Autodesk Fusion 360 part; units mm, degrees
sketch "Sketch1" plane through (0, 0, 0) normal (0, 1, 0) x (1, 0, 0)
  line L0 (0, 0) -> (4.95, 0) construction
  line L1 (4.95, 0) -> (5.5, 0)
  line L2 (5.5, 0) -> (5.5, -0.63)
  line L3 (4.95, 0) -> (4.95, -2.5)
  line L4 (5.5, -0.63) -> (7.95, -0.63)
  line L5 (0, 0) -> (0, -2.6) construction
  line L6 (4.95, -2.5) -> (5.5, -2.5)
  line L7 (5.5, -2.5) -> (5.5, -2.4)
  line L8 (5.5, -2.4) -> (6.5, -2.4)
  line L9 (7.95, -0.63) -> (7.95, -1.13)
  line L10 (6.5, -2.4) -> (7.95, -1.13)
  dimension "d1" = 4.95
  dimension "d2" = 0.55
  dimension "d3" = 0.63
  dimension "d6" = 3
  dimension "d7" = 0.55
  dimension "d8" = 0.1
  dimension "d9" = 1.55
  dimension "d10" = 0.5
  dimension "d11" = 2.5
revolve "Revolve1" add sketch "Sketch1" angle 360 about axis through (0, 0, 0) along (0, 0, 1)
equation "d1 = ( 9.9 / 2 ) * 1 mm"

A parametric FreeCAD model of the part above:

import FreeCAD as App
import Part
import Sketcher
from FreeCAD import Vector


def add_polygon(sketch, points):
    """Adds a closed chain of lines whose ends are joined by coincident constraints."""
    first, n = sketch.GeometryCount, len(points)
    for a, b in zip(points, points[1:] + points[:1]):
        sketch.addGeometry(Part.LineSegment(App.Vector(*a, 0), App.Vector(*b, 0)), False)
    for i in range(n):
        sketch.addConstraint(Sketcher.Constraint("Coincident", first + i, 2, first + (i + 1) % n, 1))

doc = App.newDocument("Part")
params = doc.addObject("Spreadsheet::Sheet", "Params")
for row, (alias, value) in enumerate([
    ("sketch1_height", "2.5 mm"),
    ("sketch1_height2", "0.1 mm"),
    ("sketch1_height3", "0.5 mm"),
    ("sketch1_width", "0.55 mm"),
    ("sketch1_height4", "0.63 mm"),
    ("revolution_angle", "360 deg"),
], start=1):
    params.set(f"A{row}", alias)
    params.set(f"B{row}", "=" + value)
    params.setAlias(f"B{row}", alias)

body = doc.addObject("PartDesign::Body", "Body")

# Sketch on XZ plane
sketch1 = body.newObject("Sketcher::SketchObject", "Sketch")
sketch1.AttachmentSupport = (doc.getObject("XZ_Plane"), [""])
sketch1.MapMode = "FlatFace"
add_polygon(sketch1, [(5.5, 0), (4.95, 0), (4.95, 2.5), (5.5, 2.5), (5.5, 2.4), (6.5, 2.4), (7.95, 1.13), (7.95, 0.63), (5.5, 0.63)])  # lines 0-8
sketch1.addConstraint(Sketcher.Constraint("Horizontal", 0))
sketch1.addConstraint(Sketcher.Constraint("Vertical", 1))
sketch1.addConstraint(Sketcher.Constraint("Horizontal", 2))
sketch1.addConstraint(Sketcher.Constraint("Vertical", 3))
sketch1.addConstraint(Sketcher.Constraint("Horizontal", 4))
sketch1.addConstraint(Sketcher.Constraint("Vertical", 6))
sketch1.addConstraint(Sketcher.Constraint("Horizontal", 7))
sketch1.addConstraint(Sketcher.Constraint("Vertical", 8))
sketch1.addConstraint(Sketcher.Constraint("PointOnObject", 0, 2, -1))
sketch1.addConstraint(Sketcher.Constraint("Vertical", 3, 2, 7, 2))
sketch1.addConstraint(Sketcher.Constraint("DistanceY", 1, 1, 1, 2, 2.5))
sketch1.addConstraint(Sketcher.Constraint("DistanceY", 3, 2, 3, 1, 0.1))
sketch1.addConstraint(Sketcher.Constraint("DistanceY", 6, 2, 6, 1, 0.5))
sketch1.addConstraint(Sketcher.Constraint("DistanceX", 0, 2, 5, 2, 3.0))
sketch1.addConstraint(Sketcher.Constraint("DistanceX", 0, 2, 0, 1, 0.55))
sketch1.addConstraint(Sketcher.Constraint("DistanceY", 8, 2, 8, 1, 0.63))
sketch1.addConstraint(Sketcher.Constraint("DistanceX", 4, 1, 4, 2, 1.0))
sketch1.addConstraint(Sketcher.Constraint("DistanceX", -1, 1, 0, 2, 4.95))
sketch1.setExpression("Constraints[19]", "Params.sketch1_height")
sketch1.setExpression("Constraints[20]", "Params.sketch1_height2")
sketch1.setExpression("Constraints[21]", "Params.sketch1_height3")
sketch1.setExpression("Constraints[23]", "Params.sketch1_width")
sketch1.setExpression("Constraints[24]", "Params.sketch1_height4")
revolution = body.newObject("PartDesign::Revolution", "Revolution")
revolution.Profile = sketch1
revolution.ReferenceAxis = (sketch1, ["V_Axis"])
revolution.setExpression("Angle", "Params.revolution_angle")

doc.recompute()
